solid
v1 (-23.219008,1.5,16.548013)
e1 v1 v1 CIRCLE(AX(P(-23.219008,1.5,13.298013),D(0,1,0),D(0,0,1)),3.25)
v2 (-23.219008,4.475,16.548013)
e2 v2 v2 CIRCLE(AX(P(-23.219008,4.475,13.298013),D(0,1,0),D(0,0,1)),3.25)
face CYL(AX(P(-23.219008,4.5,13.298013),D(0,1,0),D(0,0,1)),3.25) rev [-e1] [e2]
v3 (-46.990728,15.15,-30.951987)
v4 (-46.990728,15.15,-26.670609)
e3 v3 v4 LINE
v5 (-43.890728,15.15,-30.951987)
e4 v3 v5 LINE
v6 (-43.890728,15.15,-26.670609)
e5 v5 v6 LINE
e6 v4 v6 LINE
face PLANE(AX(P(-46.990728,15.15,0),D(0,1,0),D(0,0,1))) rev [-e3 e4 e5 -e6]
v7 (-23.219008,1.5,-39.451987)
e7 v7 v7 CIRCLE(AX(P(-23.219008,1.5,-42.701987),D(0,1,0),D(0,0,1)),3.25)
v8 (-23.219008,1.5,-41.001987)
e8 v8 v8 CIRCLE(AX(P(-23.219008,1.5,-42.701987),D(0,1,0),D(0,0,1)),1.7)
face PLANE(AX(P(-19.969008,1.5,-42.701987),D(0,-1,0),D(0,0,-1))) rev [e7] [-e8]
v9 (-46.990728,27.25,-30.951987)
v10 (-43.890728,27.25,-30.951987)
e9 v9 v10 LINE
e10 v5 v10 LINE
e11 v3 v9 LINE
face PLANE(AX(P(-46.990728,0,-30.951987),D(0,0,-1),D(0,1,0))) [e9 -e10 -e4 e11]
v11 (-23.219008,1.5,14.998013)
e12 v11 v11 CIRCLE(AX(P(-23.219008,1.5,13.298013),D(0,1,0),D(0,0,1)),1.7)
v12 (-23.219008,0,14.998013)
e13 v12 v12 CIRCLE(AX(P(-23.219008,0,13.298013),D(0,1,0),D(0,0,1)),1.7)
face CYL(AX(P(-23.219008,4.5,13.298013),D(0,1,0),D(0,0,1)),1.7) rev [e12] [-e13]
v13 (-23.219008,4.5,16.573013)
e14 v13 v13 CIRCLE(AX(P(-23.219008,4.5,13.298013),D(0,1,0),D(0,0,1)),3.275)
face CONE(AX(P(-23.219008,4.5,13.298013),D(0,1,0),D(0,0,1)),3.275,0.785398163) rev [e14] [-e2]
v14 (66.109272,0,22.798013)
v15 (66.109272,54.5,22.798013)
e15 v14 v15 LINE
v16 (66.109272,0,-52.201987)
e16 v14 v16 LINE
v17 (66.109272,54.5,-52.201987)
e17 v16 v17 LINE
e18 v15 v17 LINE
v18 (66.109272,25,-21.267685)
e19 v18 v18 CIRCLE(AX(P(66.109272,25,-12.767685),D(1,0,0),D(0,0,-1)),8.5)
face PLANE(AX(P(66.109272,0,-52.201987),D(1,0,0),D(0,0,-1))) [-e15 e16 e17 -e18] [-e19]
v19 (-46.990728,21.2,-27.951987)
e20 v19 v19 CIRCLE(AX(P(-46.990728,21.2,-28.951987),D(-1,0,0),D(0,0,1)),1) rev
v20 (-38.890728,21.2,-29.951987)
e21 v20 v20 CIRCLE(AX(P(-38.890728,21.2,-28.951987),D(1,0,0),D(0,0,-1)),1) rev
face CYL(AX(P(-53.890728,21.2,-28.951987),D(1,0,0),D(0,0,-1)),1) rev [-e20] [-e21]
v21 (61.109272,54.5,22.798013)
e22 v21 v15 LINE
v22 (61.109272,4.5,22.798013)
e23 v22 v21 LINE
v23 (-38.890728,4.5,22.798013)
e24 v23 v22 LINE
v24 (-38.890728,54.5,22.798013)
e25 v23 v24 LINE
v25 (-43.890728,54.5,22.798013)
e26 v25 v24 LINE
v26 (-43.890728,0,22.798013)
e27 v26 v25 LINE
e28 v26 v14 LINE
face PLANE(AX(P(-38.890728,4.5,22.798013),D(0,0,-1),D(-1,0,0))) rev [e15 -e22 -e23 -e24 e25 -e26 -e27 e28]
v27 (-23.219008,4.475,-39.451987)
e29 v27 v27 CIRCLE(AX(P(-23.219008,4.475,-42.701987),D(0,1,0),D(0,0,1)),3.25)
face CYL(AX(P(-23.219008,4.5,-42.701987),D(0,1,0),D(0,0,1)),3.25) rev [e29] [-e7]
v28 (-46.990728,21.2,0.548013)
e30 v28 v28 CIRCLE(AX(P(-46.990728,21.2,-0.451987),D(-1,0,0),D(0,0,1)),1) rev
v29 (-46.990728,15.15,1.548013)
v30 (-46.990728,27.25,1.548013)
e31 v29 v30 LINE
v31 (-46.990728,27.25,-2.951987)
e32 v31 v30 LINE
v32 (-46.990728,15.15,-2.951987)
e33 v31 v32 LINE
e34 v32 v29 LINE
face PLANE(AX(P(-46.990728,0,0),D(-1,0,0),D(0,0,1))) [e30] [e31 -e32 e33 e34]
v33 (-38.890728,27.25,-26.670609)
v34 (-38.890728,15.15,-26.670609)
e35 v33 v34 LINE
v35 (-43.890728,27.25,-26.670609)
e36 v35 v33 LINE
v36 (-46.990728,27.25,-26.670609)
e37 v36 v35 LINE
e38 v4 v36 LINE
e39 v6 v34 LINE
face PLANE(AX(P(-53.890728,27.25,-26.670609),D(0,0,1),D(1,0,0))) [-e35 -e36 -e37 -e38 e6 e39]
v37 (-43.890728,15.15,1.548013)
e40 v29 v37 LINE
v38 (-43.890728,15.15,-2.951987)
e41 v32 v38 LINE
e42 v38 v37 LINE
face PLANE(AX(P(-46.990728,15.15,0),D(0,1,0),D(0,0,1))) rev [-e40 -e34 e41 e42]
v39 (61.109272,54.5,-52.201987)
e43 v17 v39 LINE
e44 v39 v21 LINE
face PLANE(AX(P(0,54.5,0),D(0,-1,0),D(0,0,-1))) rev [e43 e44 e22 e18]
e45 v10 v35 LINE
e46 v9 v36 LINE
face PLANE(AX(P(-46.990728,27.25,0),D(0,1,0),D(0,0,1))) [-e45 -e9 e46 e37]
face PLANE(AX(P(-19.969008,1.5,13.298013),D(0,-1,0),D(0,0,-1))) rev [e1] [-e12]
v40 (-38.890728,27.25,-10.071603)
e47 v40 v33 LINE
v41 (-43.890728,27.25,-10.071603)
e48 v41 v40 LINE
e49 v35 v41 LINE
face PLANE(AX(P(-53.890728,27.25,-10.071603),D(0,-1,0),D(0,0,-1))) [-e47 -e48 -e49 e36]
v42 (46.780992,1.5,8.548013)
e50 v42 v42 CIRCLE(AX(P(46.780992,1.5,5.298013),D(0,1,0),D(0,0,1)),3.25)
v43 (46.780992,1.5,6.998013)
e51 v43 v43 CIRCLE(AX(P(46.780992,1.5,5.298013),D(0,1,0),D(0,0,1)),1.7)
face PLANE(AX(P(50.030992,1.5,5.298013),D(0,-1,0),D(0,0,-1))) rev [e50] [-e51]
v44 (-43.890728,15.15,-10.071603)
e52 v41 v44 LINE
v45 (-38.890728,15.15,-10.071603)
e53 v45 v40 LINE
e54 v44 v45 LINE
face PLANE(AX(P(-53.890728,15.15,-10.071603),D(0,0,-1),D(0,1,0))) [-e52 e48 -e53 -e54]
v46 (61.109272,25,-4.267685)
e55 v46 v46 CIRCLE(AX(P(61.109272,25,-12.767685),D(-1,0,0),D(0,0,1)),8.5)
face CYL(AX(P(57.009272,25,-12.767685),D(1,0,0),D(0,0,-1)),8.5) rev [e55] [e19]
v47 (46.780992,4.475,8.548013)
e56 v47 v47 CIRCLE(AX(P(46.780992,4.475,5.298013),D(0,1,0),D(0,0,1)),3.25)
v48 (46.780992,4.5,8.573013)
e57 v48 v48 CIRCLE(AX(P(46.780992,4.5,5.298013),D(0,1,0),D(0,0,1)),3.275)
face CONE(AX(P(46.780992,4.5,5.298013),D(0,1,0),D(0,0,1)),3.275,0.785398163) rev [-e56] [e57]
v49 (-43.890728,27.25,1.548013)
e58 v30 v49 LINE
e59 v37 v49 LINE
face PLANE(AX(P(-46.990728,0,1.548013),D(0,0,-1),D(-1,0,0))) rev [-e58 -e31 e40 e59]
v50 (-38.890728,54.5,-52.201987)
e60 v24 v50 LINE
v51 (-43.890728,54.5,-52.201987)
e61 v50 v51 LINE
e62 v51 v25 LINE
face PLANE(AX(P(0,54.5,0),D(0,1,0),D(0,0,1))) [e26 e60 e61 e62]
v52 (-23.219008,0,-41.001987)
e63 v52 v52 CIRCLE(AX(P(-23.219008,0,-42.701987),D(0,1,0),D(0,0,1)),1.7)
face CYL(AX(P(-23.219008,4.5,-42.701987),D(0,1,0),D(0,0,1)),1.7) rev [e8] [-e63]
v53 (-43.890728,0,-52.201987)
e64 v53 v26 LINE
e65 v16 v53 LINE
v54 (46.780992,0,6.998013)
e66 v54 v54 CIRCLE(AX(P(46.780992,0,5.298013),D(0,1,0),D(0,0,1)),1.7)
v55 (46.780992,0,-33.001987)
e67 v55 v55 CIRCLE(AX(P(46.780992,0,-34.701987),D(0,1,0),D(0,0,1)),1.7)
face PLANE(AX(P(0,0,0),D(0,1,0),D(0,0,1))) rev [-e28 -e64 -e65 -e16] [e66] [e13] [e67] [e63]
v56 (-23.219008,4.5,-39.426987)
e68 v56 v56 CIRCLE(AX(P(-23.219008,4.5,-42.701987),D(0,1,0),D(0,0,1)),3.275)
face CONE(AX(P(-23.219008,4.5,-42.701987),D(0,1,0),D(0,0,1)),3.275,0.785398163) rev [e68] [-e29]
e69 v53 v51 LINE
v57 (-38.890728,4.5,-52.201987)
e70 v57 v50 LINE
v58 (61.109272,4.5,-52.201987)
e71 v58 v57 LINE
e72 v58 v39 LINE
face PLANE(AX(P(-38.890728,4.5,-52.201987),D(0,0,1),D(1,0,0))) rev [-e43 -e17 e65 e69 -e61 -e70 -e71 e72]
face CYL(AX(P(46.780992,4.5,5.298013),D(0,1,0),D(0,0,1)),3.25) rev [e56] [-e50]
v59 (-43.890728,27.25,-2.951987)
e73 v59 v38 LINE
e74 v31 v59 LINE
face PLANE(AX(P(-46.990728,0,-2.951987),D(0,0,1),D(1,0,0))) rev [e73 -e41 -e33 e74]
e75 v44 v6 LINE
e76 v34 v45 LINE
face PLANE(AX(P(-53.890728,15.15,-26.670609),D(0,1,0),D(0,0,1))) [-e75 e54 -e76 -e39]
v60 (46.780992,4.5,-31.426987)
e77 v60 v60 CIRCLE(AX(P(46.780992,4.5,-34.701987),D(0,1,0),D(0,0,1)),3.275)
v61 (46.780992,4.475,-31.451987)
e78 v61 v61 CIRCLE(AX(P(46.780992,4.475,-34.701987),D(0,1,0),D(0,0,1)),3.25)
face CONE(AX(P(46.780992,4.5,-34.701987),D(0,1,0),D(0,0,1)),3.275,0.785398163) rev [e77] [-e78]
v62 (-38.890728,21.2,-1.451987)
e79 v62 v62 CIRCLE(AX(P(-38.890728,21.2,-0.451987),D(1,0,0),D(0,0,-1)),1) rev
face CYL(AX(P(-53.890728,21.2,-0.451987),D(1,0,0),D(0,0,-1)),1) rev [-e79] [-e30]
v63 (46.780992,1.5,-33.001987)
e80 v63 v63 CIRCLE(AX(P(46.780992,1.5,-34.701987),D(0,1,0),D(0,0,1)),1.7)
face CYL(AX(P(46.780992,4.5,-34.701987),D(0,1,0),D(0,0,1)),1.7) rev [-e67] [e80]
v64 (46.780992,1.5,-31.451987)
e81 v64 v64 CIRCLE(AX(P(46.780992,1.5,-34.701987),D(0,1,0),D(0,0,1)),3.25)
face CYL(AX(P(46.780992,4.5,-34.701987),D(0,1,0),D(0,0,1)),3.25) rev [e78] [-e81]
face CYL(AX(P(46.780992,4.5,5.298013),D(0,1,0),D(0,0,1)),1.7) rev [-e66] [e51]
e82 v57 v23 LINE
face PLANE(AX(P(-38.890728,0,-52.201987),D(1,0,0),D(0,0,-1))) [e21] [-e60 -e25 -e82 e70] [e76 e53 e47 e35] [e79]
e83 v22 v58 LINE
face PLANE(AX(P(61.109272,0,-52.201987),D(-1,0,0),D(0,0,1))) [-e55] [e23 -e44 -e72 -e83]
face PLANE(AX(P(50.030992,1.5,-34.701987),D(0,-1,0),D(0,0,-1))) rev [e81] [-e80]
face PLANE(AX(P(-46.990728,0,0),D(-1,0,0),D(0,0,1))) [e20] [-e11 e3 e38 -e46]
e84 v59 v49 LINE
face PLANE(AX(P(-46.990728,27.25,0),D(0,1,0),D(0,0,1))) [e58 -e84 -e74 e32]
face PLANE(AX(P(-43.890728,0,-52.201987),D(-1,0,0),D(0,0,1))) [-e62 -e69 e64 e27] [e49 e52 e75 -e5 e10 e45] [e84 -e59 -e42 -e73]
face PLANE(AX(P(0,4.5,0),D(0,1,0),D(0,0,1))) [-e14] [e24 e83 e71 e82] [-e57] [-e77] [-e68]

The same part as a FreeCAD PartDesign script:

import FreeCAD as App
import Part
import Sketcher
from FreeCAD import Vector
Q = App.Units.Quantity


def add_polygon(sketch, points):
    """Adds a closed chain of lines whose ends are joined by coincident constraints."""
    first, n = sketch.GeometryCount, len(points)
    for a, b in zip(points, points[1:] + points[:1]):
        sketch.addGeometry(Part.LineSegment(App.Vector(*a, 0), App.Vector(*b, 0)), False)
    for i in range(n):
        sketch.addConstraint(Sketcher.Constraint("Coincident", first + i, 2, first + (i + 1) % n, 1))

doc = App.newDocument("Part")
body = doc.addObject("PartDesign::Body", "Body")

sketch1 = body.newObject("Sketcher::SketchObject", "Sketch")
sketch1.AttachmentSupport = (doc.getObject("XZ_Plane"), [""])
sketch1.MapMode = "FlatFace"
add_polygon(sketch1, [(-39, -52), (-39, 23), (61, 23), (61, -52)])
sketch1.addConstraint(Sketcher.Constraint("Vertical", 0))
sketch1.addConstraint(Sketcher.Constraint("Horizontal", 1))
sketch1.addConstraint(Sketcher.Constraint("Vertical", 2))
sketch1.addConstraint(Sketcher.Constraint("Horizontal", 3))
sketch1.addConstraint(Sketcher.Constraint("DistanceX", 1, 1, 1, 2, Q("100 mm")))
sketch1.addConstraint(Sketcher.Constraint("DistanceY", 0, 1, 0, 2, Q("75 mm")))
sketch1.addConstraint(Sketcher.Constraint("DistanceX", 0, 2, -1, 1, Q("38.890728 mm")))
sketch1.addConstraint(Sketcher.Constraint("DistanceY", -1, 1, 0, 2, Q("22.798013 mm")))
pad1 = body.newObject("PartDesign::Pad", "Pad")
pad1.Profile = sketch1
pad1.Length = 4.5
pad1.Reversed = True

sketch2 = body.newObject("Sketcher::SketchObject", "Sketch001")
sketch2.AttachmentSupport = (doc.getObject("YZ_Plane"), [""])
sketch2.MapMode = "FlatFace"
sketch2.AttachmentOffset = App.Placement(Vector(0, 0, -23.219008), App.Rotation())
add_polygon(sketch2, [(0, -42.702), (4.5, -42.702), (4.5, -39.427), (4.475, -39.452), (1.5, -39.452), (1.5, -41.002), (0, -41.002)])
sketch2.addGeometry(Part.LineSegment(Vector(4.5, -42.702, 0), Vector(0, -42.702, 0)), True)
sketch2.addConstraint(Sketcher.Constraint("Horizontal", 0))
sketch2.addConstraint(Sketcher.Constraint("Vertical", 1))
sketch2.addConstraint(Sketcher.Constraint("Horizontal", 3))
sketch2.addConstraint(Sketcher.Constraint("Vertical", 4))
sketch2.addConstraint(Sketcher.Constraint("Horizontal", 5))
sketch2.addConstraint(Sketcher.Constraint("Vertical", 6))
sketch2.addConstraint(Sketcher.Constraint("Horizontal", 7))
sketch2.addConstraint(Sketcher.Constraint("Coincident", 7, 1, 0, 2))
sketch2.addConstraint(Sketcher.Constraint("PointOnObject", 5, 2, -2))
sketch2.addConstraint(Sketcher.Constraint("PointOnObject", 7, 2, -2))
sketch2.addConstraint(Sketcher.Constraint("Angle", 2, Q("-135 deg")))
sketch2.addConstraint(Sketcher.Constraint("DistanceX", 0, 1, 0, 2, Q("4.5 mm")))
sketch2.addConstraint(Sketcher.Constraint("DistanceX", 5, 2, 5, 1, Q("1.5 mm")))
sketch2.addConstraint(Sketcher.Constraint("DistanceY", 6, 2, 6, 1, Q("1.7 mm")))
sketch2.addConstraint(Sketcher.Constraint("DistanceY", 4, 2, 4, 1, Q("1.55 mm")))
sketch2.addConstraint(Sketcher.Constraint("DistanceX", 3, 2, 3, 1, Q("2.975 mm")))
sketch2.addConstraint(Sketcher.Constraint("DistanceY", 0, 2, -1, 1, Q("42.701987 mm")))
groove = body.newObject("PartDesign::Groove", "Groove")
groove.Profile = sketch2
groove.ReferenceAxis = (sketch2, ["Axis0"])
groove.Angle = 360
doc.recompute()

linearpattern = body.newObject("PartDesign::LinearPattern", "LinearPattern")
linearpattern.Originals = [groove]
linearpattern.Direction = (doc.getObject("Z_Axis"), [""])
linearpattern.Mode = "offset"
linearpattern.Offset = 56
linearpattern.Occurrences = 2
body.Tip = linearpattern
doc.recompute()

datumline = body.newObject("PartDesign::Line", "DatumLine")
datumline.Placement = App.Placement(Vector(0, 0, 0), App.Rotation(Vector(0, 0, 1), Vector(0.824728852, 0, 0.565528356)))
linearpattern2 = body.newObject("PartDesign::LinearPattern", "LinearPattern001")
linearpattern2.Originals = [groove]
linearpattern2.Direction = (datumline, [""])
linearpattern2.Mode = "offset"
linearpattern2.Offset = 84.876381
linearpattern2.Occurrences = 2
body.Tip = linearpattern2
doc.recompute()

datumline2 = body.newObject("PartDesign::Line", "DatumLine001")
datumline2.Placement = App.Placement(Vector(0, 0, 0), App.Rotation(Vector(0, 0, 1), Vector(0.993532673, 0, 0.113546591)))
linearpattern3 = body.newObject("PartDesign::LinearPattern", "LinearPattern002")
linearpattern3.Originals = [groove]
linearpattern3.Direction = (datumline2, [""])
linearpattern3.Mode = "offset"
linearpattern3.Offset = 70.45566
linearpattern3.Occurrences = 2
body.Tip = linearpattern3

sketch3 = body.newObject("Sketcher::SketchObject", "Sketch002")
sketch3.AttachmentSupport = (doc.getObject("XZ_Plane"), [""])
sketch3.MapMode = "FlatFace"
sketch3.AttachmentOffset = App.Placement(Vector(0, 0, -4.5), App.Rotation())
add_polygon(sketch3, [(-44, -52), (-44, 23), (-39, 23), (-39, -52)])
add_polygon(sketch3, [(61, -52), (61, 23), (66, 23), (66, -52)])
sketch3.addConstraint(Sketcher.Constraint("Vertical", 0))
sketch3.addConstraint(Sketcher.Constraint("Horizontal", 1))
sketch3.addConstraint(Sketcher.Constraint("Vertical", 2))
sketch3.addConstraint(Sketcher.Constraint("Horizontal", 3))
sketch3.addConstraint(Sketcher.Constraint("Vertical", 4))
sketch3.addConstraint(Sketcher.Constraint("Horizontal", 5))
sketch3.addConstraint(Sketcher.Constraint("Vertical", 6))
sketch3.addConstraint(Sketcher.Constraint("Horizontal", 7))
sketch3.addConstraint(Sketcher.Constraint("Horizontal", 1, 2, 4, 2))
sketch3.addConstraint(Sketcher.Constraint("Horizontal", 3, 2, 6, 2))
sketch3.addConstraint(Sketcher.Constraint("Equal", 3, 5))
sketch3.addConstraint(Sketcher.Constraint("DistanceX", 1, 1, 1, 2, Q("5 mm")))
sketch3.addConstraint(Sketcher.Constraint("DistanceY", 0, 1, 0, 2, Q("75 mm")))
sketch3.addConstraint(Sketcher.Constraint("DistanceX", 1, 2, 4, 2, Q("100 mm")))
sketch3.addConstraint(Sketcher.Constraint("DistanceX", 0, 2, -1, 1, Q("43.890728 mm")))
sketch3.addConstraint(Sketcher.Constraint("DistanceY", -1, 1, 0, 2, Q("22.798013 mm")))
pad2 = body.newObject("PartDesign::Pad", "Pad001")
pad2.Profile = sketch3
pad2.Type = "TwoLengths"
pad2.Length = 50
pad2.Length2 = 4.5
pad2.Reversed = True

sketch4 = body.newObject("Sketcher::SketchObject", "Sketch003")
sketch4.AttachmentSupport = (doc.getObject("YZ_Plane"), [""])
sketch4.MapMode = "FlatFace"
sketch4.AttachmentOffset = App.Placement(Vector(0, 0, -43.890728), App.Rotation())
add_polygon(sketch4, [(27.2, -31), (15.2, -31), (15.2, -26.5), (27.2, -26.5)])
add_polygon(sketch4, [(27.2, -3), (15.2, -3), (15.2, 1.5), (27.2, 1.5)])
sketch4.addConstraint(Sketcher.Constraint("Horizontal", 0))
sketch4.addConstraint(Sketcher.Constraint("Vertical", 1))
sketch4.addConstraint(Sketcher.Constraint("Horizontal", 2))
sketch4.addConstraint(Sketcher.Constraint("Vertical", 3))
sketch4.addConstraint(Sketcher.Constraint("Horizontal", 4))
sketch4.addConstraint(Sketcher.Constraint("Vertical", 5))
sketch4.addConstraint(Sketcher.Constraint("Horizontal", 6))
sketch4.addConstraint(Sketcher.Constraint("Vertical", 7))
sketch4.addConstraint(Sketcher.Constraint("Vertical", 1, 2, 4, 2))
sketch4.addConstraint(Sketcher.Constraint("Vertical", 3, 2, 6, 2))
sketch4.addConstraint(Sketcher.Constraint("Equal", 3, 5))
sketch4.addConstraint(Sketcher.Constraint("DistanceX", 0, 2, 0, 1, Q("12.1 mm")))
sketch4.addConstraint(Sketcher.Constraint("DistanceY", 1, 1, 1, 2, Q("4.5 mm")))
sketch4.addConstraint(Sketcher.Constraint("DistanceY", 0, 2, 4, 2, Q("28 mm")))
sketch4.addConstraint(Sketcher.Constraint("DistanceX", -1, 1, 0, 2, Q("15.15 mm")))
sketch4.addConstraint(Sketcher.Constraint("DistanceY", 0, 2, -1, 1, Q("30.951987 mm")))
pad3 = body.newObject("PartDesign::Pad", "Pad002")
pad3.Profile = sketch4
pad3.Length = 3.1
pad3.Reversed = True

sketch5 = body.newObject("Sketcher::SketchObject", "Sketch004")
sketch5.AttachmentSupport = (doc.getObject("YZ_Plane"), [""])
sketch5.MapMode = "FlatFace"
sketch5.AttachmentOffset = App.Placement(Vector(0, 0, -43.890728), App.Rotation())
sketch5.addGeometry(Part.Circle(Vector(21.2, -29, 0), Vector(0, 0, 1), 1), False)
sketch5.addGeometry(Part.Circle(Vector(21.2, -0.5, 0), Vector(0, 0, 1), 1), False)
add_polygon(sketch5, [(27.2, -26.7), (15.2, -26.7), (15.2, -10.1), (27.2, -10.1)])
sketch5.addConstraint(Sketcher.Constraint("Horizontal", 2))
sketch5.addConstraint(Sketcher.Constraint("Vertical", 3))
sketch5.addConstraint(Sketcher.Constraint("Horizontal", 4))
sketch5.addConstraint(Sketcher.Constraint("Vertical", 5))
sketch5.addConstraint(Sketcher.Constraint("Equal", 0, 1))
sketch5.addConstraint(Sketcher.Constraint("Vertical", 0, 3, 1, 3))
sketch5.addConstraint(Sketcher.Constraint("Diameter", 0, Q("2 mm")))
sketch5.addConstraint(Sketcher.Constraint("DistanceX", 2, 2, 2, 1, Q("12.1 mm")))
sketch5.addConstraint(Sketcher.Constraint("DistanceX", -1, 1, 0, 3, Q("21.2 mm")))
sketch5.addConstraint(Sketcher.Constraint("DistanceY", 0, 3, 1, 3, Q("28.5 mm")))
sketch5.addConstraint(Sketcher.Constraint("DistanceX", -1, 1, 2, 2, Q("15.15 mm")))
sketch5.addConstraint(Sketcher.Constraint("DistanceY", 3, 1, 3, 2, Q("16.599006 mm")))
sketch5.addConstraint(Sketcher.Constraint("DistanceY", 2, 2, -1, 1, Q("26.670609 mm")))
sketch5.addConstraint(Sketcher.Constraint("DistanceY", 0, 3, 2, 2, Q("2.281378 mm")))
pocket1 = body.newObject("PartDesign::Pocket", "Pocket")
pocket1.Profile = sketch5
pocket1.Type = "TwoLengths"
pocket1.Length = 10
pocket1.Length2 = 9.1

sketch6 = body.newObject("Sketcher::SketchObject", "Sketch005")
sketch6.AttachmentSupport = (doc.getObject("YZ_Plane"), [""])
sketch6.MapMode = "FlatFace"
sketch6.AttachmentOffset = App.Placement(Vector(0, 0, 66.109272), App.Rotation())
sketch6.addGeometry(Part.Circle(Vector(25, -13, 0), Vector(0, 0, 1), 8), False)
sketch6.addConstraint(Sketcher.Constraint("Diameter", 0, Q("17 mm")))
sketch6.addConstraint(Sketcher.Constraint("DistanceX", -1, 1, 0, 3, Q("25 mm")))
sketch6.addConstraint(Sketcher.Constraint("DistanceY", 0, 3, -1, 1, Q("12.767685 mm")))
pocket2 = body.newObject("PartDesign::Pocket", "Pocket001")
pocket2.Profile = sketch6
pocket2.Length = 9.1

doc.recompute()
